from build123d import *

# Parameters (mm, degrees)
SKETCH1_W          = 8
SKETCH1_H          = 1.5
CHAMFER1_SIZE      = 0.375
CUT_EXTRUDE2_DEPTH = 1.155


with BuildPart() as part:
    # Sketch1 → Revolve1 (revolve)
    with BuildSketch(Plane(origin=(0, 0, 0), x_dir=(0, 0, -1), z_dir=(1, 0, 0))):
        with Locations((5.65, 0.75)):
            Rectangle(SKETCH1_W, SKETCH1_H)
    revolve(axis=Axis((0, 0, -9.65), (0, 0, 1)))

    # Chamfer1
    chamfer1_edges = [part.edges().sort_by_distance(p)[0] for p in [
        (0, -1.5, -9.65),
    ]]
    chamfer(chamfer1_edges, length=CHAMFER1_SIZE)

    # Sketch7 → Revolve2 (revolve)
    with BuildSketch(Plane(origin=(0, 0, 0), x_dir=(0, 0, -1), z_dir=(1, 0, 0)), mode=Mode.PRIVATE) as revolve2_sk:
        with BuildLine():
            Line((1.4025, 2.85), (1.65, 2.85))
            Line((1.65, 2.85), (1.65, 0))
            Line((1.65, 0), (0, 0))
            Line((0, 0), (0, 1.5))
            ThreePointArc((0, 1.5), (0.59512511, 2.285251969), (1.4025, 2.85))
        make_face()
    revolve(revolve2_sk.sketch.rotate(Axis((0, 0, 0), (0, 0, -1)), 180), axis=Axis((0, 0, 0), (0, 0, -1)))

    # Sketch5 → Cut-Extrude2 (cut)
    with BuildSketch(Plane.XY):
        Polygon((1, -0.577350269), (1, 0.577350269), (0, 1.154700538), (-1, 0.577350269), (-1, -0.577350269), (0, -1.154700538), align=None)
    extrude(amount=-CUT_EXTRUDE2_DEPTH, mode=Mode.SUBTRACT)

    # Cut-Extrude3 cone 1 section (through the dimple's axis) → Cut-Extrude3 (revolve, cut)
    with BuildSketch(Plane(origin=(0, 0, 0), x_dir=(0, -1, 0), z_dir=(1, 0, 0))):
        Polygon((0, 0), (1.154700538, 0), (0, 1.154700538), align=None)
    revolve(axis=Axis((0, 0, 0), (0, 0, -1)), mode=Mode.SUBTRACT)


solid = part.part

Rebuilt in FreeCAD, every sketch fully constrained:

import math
import FreeCAD as App
import Part
import Sketcher
from FreeCAD import Vector
Q = App.Units.Quantity


def edges_at(feature, points):
    """Names of the edges that pass closest to the given points."""
    edges = feature.Shape.Edges
    near = lambda p: min(range(len(edges)), key=lambda i: edges[i].distToShape(Part.Vertex(*p))[0])
    return sorted({f"Edge{near(p) + 1}" for p in points})

doc = App.newDocument("Part")
body = doc.addObject("PartDesign::Body", "Body")

sketch1 = body.newObject("Sketcher::SketchObject", "Sketch")
sketch1.AttachmentSupport = (doc.getObject("YZ_Plane"), [""])
sketch1.MapMode = "FlatFace"
sketch1.addGeometry(Part.LineSegment(Vector(1.5, -1.6, 0), Vector(0, -1.6, 0)), False)
sketch1.addGeometry(Part.LineSegment(Vector(0, -1.6, 0), Vector(0, -9.7, 0)), False)
sketch1.addGeometry(Part.LineSegment(Vector(0, -9.7, 0), Vector(1.5, -9.7, 0)), False)
sketch1.addGeometry(Part.LineSegment(Vector(1.5, -9.7, 0), Vector(1.5, -1.6, 0)), False)
sketch1.addConstraint(Sketcher.Constraint("Coincident", 0, 2, 1, 1))
sketch1.addConstraint(Sketcher.Constraint("Coincident", 1, 2, 2, 1))
sketch1.addConstraint(Sketcher.Constraint("Coincident", 2, 2, 3, 1))
sketch1.addConstraint(Sketcher.Constraint("Coincident", 3, 2, 0, 1))
sketch1.addConstraint(Sketcher.Constraint("Horizontal", 0))
sketch1.addConstraint(Sketcher.Constraint("Vertical", 1))
sketch1.addConstraint(Sketcher.Constraint("Horizontal", 2))
sketch1.addConstraint(Sketcher.Constraint("Vertical", 3))
sketch1.addConstraint(Sketcher.Constraint("PointOnObject", 0, 2, -2))
sketch1.addConstraint(Sketcher.Constraint("DistanceY", 1, 2, 1, 1, Q("8 mm")))
sketch1.addConstraint(Sketcher.Constraint("DistanceX", 0, 2, 0, 1, Q("1.5 mm")))
sketch1.addConstraint(Sketcher.Constraint("DistanceY", 0, 2, -1, 1, Q("1.65 mm")))
revolution = body.newObject("PartDesign::Revolution", "Revolution")
revolution.Profile = sketch1
revolution.ReferenceAxis = (sketch1, ["V_Axis"])
revolution.Angle = 360
doc.recompute()

chamfer = body.newObject("PartDesign::Chamfer", "Chamfer")
chamfer.Base = (revolution, edges_at(revolution, [(0, -1.5, -9.65)]))
chamfer.Size = 0.375

sketch2 = body.newObject("Sketcher::SketchObject", "Sketch001")
sketch2.AttachmentSupport = (doc.getObject("YZ_Plane"), [""])
sketch2.MapMode = "FlatFace"
sketch2.addGeometry(Part.LineSegment(Vector(2.85, -1.65, 0), Vector(2.85, -1.4, 0)), False)
sketch2.addGeometry(Part.ArcOfCircle(Part.Circle(Vector(0, -2.79, 0), Vector(0, 0, 1), 3.17), math.radians(26), math.radians(62)), False)
sketch2.addGeometry(Part.LineSegment(Vector(1.5, 0, 0), Vector(0, 0, 0)), False)
sketch2.addGeometry(Part.LineSegment(Vector(0, 0, 0), Vector(0, -1.65, 0)), False)
sketch2.addGeometry(Part.LineSegment(Vector(0, -1.65, 0), Vector(2.85, -1.65, 0)), False)
sketch2.addConstraint(Sketcher.Constraint("Coincident", 0, 2, 1, 1))
sketch2.addConstraint(Sketcher.Constraint("Coincident", 1, 2, 2, 1))
sketch2.addConstraint(Sketcher.Constraint("Coincident", 2, 2, 3, 1))
sketch2.addConstraint(Sketcher.Constraint("Coincident", 3, 2, 4, 1))
sketch2.addConstraint(Sketcher.Constraint("Coincident", 4, 2, 0, 1))
sketch2.addConstraint(Sketcher.Constraint("Vertical", 0))
sketch2.addConstraint(Sketcher.Constraint("Horizontal", 2))
sketch2.addConstraint(Sketcher.Constraint("Vertical", 3))
sketch2.addConstraint(Sketcher.Constraint("Horizontal", 4))
sketch2.addConstraint(Sketcher.Constraint("Coincident", 2, 2, -1, 1))
sketch2.addConstraint(Sketcher.Constraint("PointOnObject", 1, 3, -2))
sketch2.addConstraint(Sketcher.Constraint("DistanceX", 2, 2, 2, 1, Q("1.5 mm")))
sketch2.addConstraint(Sketcher.Constraint("DistanceX", 4, 1, 4, 2, Q("2.85 mm")))
sketch2.addConstraint(Sketcher.Constraint("DistanceY", 3, 2, 3, 1, Q("1.65 mm")))
sketch2.addConstraint(Sketcher.Constraint("DistanceY", 0, 1, 0, 2, Q("0.2475 mm")))
revolution2 = body.newObject("PartDesign::Revolution", "Revolution001")
revolution2.Profile = sketch2
revolution2.ReferenceAxis = (sketch2, ["V_Axis"])
revolution2.Angle = 360

sketch3 = body.newObject("Sketcher::SketchObject", "Sketch002")
sketch3.AttachmentSupport = (doc.getObject("XY_Plane"), [""])
sketch3.MapMode = "FlatFace"
sketch3.addGeometry(Part.LineSegment(Vector(1, -0.6, 0), Vector(1, 0.6, 0)), False)
sketch3.addGeometry(Part.LineSegment(Vector(1, 0.6, 0), Vector(0, 1.2, 0)), False)
sketch3.addGeometry(Part.LineSegment(Vector(0, 1.2, 0), Vector(-1, 0.6, 0)), False)
sketch3.addGeometry(Part.LineSegment(Vector(-1, 0.6, 0), Vector(-1, -0.6, 0)), False)
sketch3.addGeometry(Part.LineSegment(Vector(-1, -0.6, 0), Vector(0, -1.2, 0)), False)
sketch3.addGeometry(Part.LineSegment(Vector(0, -1.2, 0), Vector(1, -0.6, 0)), False)
sketch3.addConstraint(Sketcher.Constraint("Coincident", 0, 2, 1, 1))
sketch3.addConstraint(Sketcher.Constraint("Coincident", 1, 2, 2, 1))
sketch3.addConstraint(Sketcher.Constraint("Coincident", 2, 2, 3, 1))
sketch3.addConstraint(Sketcher.Constraint("Coincident", 3, 2, 4, 1))
sketch3.addConstraint(Sketcher.Constraint("Coincident", 4, 2, 5, 1))
sketch3.addConstraint(Sketcher.Constraint("Coincident", 5, 2, 0, 1))
sketch3.addConstraint(Sketcher.Constraint("Vertical", 0))
sketch3.addConstraint(Sketcher.Constraint("Vertical", 3))
sketch3.addConstraint(Sketcher.Constraint("Symmetric", 0, 2, 3, 2, -1, 1))
sketch3.addConstraint(Sketcher.Constraint("Symmetric", 1, 2, 4, 2, -1, 1))
sketch3.addConstraint(Sketcher.Constraint("PointOnObject", 1, 2, -2))
sketch3.addConstraint(Sketcher.Constraint("Parallel", 2, 5))
sketch3.addConstraint(Sketcher.Constraint("Horizontal", 0, 2, 2, 2))
sketch3.addConstraint(Sketcher.Constraint("Angle", 1, Q("150 deg")))
sketch3.addConstraint(Sketcher.Constraint("DistanceX", -1, 1, 0, 2, Q("1 mm")))
sketch3.addConstraint(Sketcher.Constraint("DistanceY", 0, 1, 0, 2, Q("1.154701 mm")))
pocket1 = body.newObject("PartDesign::Pocket", "Pocket")
pocket1.Profile = sketch3
pocket1.Length = 1.155

sketch4 = body.newObject("Sketcher::SketchObject", "Sketch003")
sketch4.AttachmentSupport = (doc.getObject("YZ_Plane"), [""])
sketch4.MapMode = "FlatFace"
sketch4.addGeometry(Part.LineSegment(Vector(0, 0, 0), Vector(-1.2, 0, 0)), False)
sketch4.addGeometry(Part.LineSegment(Vector(-1.2, 0, 0), Vector(0, -1.2, 0)), False)
sketch4.addGeometry(Part.LineSegment(Vector(0, -1.2, 0), Vector(0, 0, 0)), False)
sketch4.addConstraint(Sketcher.Constraint("Coincident", 0, 2, 1, 1))
sketch4.addConstraint(Sketcher.Constraint("Coincident", 1, 2, 2, 1))
sketch4.addConstraint(Sketcher.Constraint("Coincident", 2, 2, 0, 1))
sketch4.addConstraint(Sketcher.Constraint("Horizontal", 0))
sketch4.addConstraint(Sketcher.Constraint("Vertical", 2))
sketch4.addConstraint(Sketcher.Constraint("Coincident", 2, 2, -1, 1))
sketch4.addConstraint(Sketcher.Constraint("Equal", 0, 2))
sketch4.addConstraint(Sketcher.Constraint("DistanceX", 0, 2, 0, 1, Q("1.154701 mm")))
groove = body.newObject("PartDesign::Groove", "Groove")
groove.Profile = sketch4
groove.ReferenceAxis = (sketch4, ["V_Axis"])
groove.Angle = 360

doc.recompute()
